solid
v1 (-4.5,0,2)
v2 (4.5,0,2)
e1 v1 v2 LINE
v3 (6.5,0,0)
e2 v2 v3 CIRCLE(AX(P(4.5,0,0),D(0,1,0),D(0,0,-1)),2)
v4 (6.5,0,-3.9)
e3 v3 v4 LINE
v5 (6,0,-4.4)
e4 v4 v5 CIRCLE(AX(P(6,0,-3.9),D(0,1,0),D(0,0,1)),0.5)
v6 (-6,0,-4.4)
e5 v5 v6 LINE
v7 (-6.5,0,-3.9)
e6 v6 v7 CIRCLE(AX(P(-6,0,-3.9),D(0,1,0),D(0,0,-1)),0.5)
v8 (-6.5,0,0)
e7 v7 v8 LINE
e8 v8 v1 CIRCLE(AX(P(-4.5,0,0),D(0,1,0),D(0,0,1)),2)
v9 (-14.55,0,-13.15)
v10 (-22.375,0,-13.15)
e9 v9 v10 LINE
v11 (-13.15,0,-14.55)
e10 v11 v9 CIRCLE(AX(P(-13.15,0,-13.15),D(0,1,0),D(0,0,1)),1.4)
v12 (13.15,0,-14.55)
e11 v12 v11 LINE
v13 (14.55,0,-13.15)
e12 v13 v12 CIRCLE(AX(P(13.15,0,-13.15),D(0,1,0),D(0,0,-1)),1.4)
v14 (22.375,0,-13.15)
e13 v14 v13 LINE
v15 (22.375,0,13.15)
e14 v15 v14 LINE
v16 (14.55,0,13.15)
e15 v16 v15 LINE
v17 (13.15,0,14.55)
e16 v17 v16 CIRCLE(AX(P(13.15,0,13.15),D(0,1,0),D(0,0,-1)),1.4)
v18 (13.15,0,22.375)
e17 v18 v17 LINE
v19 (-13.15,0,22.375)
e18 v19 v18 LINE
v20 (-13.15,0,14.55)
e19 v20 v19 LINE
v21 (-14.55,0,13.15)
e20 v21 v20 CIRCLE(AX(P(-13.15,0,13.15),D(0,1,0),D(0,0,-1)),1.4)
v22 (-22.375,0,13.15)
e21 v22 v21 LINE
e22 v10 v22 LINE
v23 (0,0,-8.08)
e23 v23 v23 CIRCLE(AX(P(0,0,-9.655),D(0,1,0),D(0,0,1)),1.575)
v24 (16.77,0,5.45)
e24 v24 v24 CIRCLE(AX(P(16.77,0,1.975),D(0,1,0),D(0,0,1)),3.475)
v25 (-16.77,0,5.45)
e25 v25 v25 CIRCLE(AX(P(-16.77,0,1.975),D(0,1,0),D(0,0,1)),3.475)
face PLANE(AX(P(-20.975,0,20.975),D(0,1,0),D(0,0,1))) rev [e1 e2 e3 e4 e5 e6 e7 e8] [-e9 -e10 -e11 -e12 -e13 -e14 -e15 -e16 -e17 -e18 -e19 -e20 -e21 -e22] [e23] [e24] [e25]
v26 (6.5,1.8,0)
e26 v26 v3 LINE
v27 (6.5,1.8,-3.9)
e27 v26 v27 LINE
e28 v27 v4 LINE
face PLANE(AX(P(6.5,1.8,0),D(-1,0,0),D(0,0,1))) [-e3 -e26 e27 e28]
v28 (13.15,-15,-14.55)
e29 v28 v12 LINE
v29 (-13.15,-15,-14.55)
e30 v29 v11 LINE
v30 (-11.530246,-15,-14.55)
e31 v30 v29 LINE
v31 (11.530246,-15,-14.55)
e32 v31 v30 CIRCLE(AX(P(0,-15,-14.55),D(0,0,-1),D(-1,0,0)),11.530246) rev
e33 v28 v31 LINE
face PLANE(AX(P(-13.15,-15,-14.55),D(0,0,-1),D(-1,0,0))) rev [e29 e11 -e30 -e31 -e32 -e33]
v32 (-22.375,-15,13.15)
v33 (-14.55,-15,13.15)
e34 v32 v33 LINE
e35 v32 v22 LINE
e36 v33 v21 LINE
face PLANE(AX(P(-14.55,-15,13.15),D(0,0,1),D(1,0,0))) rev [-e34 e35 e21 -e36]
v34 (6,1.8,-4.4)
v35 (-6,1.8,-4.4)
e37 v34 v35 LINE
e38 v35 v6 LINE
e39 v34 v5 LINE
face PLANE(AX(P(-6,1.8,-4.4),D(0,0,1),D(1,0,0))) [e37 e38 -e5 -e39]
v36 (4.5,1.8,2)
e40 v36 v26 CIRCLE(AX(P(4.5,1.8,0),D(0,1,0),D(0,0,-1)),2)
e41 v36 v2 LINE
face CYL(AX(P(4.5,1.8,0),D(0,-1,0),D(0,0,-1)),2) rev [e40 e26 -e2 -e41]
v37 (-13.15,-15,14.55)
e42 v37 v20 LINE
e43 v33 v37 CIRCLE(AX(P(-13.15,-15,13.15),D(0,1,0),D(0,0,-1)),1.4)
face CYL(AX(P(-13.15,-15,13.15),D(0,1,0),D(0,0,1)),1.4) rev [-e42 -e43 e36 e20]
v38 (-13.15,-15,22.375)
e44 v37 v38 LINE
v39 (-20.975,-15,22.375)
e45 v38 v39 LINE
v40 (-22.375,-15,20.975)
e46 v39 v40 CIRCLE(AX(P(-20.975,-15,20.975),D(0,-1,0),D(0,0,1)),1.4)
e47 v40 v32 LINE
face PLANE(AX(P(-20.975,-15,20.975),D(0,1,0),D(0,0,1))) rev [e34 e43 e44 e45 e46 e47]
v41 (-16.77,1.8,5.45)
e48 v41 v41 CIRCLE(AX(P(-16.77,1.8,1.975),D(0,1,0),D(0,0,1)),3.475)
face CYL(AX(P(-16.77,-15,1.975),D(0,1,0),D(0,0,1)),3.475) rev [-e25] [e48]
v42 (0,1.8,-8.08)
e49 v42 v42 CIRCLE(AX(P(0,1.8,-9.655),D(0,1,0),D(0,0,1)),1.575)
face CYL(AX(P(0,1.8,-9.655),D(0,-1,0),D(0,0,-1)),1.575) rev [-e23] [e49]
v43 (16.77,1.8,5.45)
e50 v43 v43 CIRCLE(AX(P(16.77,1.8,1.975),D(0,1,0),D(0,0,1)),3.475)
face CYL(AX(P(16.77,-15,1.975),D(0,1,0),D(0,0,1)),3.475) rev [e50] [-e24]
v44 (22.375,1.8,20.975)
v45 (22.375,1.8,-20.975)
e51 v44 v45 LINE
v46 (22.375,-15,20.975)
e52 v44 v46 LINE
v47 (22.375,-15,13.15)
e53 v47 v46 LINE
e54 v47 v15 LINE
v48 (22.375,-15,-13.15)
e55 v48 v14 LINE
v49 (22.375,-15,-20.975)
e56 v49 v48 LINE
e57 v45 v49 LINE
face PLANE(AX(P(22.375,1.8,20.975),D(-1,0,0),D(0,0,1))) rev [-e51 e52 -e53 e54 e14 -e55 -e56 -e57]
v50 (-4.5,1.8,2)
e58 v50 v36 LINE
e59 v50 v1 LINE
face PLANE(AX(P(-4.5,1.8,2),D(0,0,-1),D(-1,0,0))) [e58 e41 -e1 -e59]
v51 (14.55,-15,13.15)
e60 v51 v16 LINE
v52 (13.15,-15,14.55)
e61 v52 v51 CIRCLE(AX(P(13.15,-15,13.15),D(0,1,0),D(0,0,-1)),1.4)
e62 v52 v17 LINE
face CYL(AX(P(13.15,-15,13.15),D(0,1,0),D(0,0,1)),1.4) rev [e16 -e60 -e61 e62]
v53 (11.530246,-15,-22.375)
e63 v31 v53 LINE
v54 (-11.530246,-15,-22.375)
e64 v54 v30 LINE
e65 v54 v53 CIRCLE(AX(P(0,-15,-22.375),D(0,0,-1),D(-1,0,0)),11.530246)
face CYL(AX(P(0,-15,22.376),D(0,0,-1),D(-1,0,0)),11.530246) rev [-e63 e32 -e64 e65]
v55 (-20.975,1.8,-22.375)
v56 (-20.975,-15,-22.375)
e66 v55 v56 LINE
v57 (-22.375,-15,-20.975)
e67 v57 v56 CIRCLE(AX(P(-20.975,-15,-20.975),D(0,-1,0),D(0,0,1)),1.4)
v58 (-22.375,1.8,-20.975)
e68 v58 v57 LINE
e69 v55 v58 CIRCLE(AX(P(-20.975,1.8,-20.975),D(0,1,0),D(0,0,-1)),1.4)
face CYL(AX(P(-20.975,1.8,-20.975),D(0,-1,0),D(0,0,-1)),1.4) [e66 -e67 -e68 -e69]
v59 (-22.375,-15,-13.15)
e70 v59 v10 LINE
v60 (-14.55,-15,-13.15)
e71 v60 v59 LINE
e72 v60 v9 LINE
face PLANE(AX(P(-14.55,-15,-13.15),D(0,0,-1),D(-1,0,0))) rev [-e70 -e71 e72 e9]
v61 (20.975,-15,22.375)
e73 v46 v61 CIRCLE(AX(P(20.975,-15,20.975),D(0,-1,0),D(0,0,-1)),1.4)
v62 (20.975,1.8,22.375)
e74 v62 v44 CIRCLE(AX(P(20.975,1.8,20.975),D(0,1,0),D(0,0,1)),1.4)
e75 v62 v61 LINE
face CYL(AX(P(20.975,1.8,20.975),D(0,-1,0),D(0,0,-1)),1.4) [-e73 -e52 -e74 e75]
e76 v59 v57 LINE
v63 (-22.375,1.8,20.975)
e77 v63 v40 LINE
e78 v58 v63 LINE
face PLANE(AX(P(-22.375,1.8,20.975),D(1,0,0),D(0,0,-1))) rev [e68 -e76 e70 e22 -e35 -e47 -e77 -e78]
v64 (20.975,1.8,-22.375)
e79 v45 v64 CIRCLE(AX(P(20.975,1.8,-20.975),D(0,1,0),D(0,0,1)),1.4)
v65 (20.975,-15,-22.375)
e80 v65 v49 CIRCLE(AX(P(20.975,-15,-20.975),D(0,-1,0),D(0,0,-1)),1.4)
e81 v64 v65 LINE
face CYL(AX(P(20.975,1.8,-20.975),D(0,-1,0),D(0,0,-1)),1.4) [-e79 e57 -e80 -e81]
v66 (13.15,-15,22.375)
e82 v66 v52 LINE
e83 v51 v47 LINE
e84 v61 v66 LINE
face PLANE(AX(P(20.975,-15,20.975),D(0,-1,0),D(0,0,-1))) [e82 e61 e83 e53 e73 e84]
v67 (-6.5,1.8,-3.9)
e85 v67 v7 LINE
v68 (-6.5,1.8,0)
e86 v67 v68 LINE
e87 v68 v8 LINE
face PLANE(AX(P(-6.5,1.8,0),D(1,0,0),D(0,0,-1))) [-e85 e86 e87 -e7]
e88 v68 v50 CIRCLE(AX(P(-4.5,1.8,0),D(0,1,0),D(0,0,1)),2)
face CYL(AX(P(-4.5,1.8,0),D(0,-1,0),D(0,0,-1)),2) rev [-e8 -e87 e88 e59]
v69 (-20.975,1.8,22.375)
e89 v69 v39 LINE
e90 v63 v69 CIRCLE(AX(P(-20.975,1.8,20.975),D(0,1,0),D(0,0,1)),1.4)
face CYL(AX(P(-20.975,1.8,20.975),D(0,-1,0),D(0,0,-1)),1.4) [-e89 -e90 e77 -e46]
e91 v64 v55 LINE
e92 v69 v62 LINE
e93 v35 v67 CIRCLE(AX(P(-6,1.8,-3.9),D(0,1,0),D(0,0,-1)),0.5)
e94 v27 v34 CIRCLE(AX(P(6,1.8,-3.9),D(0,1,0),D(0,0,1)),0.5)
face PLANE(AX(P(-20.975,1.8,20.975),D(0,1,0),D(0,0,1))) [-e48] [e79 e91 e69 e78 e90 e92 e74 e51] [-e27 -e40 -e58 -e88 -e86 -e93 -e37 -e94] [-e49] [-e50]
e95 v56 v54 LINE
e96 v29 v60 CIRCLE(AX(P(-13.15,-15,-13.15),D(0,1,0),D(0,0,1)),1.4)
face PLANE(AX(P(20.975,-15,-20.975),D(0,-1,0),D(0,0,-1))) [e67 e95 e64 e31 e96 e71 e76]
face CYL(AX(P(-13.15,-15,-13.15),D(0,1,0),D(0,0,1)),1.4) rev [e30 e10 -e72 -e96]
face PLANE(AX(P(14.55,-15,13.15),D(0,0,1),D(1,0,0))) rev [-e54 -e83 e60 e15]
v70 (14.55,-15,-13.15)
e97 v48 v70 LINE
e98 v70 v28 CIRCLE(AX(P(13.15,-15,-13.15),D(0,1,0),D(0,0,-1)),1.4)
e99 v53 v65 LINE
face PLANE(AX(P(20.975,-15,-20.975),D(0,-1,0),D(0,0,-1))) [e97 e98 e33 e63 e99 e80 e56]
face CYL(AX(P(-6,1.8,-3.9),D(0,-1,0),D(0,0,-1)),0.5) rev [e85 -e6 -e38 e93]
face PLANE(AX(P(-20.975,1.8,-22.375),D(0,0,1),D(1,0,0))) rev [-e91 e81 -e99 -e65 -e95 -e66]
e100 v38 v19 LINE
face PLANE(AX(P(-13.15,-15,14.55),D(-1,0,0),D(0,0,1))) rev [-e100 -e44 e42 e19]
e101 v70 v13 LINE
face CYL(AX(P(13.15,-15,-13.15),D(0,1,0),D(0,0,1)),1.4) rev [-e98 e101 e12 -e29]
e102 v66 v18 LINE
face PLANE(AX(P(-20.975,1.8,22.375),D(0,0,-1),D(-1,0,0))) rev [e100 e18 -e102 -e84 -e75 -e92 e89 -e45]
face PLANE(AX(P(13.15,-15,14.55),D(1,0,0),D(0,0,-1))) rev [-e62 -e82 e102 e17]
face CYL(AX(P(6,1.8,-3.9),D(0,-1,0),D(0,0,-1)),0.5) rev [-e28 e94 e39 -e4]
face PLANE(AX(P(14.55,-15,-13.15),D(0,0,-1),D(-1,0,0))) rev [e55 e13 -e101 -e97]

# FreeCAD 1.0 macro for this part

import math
import FreeCAD as App
import Part
import Sketcher
from FreeCAD import Vector
Q = App.Units.Quantity

doc = App.newDocument("Part")
body = doc.addObject("PartDesign::Body", "Body")

sketch1 = body.newObject("Sketcher::SketchObject", "Sketch")
sketch1.AttachmentSupport = (doc.getObject("XZ_Plane"), [""])
sketch1.MapMode = "FlatFace"
sketch1.addGeometry([
    Part.LineSegment(Vector(-20.98, 22.38, 0), Vector(20.98, 22.38, 0)),
    Part.ArcOfCircle(Part.Circle(Vector(20.98, 20.98, 0), Vector(0, 0, 1), 1.4), math.radians(0), math.radians(90)),
    Part.LineSegment(Vector(22.38, 20.98, 0), Vector(22.38, -20.98, 0)),
    Part.ArcOfCircle(Part.Circle(Vector(20.98, -20.98, 0), Vector(0, 0, 1), 1.4), math.radians(-90), math.radians(0)),
    Part.LineSegment(Vector(20.98, -22.38, 0), Vector(-20.98, -22.38, 0)),
    Part.ArcOfCircle(Part.Circle(Vector(-20.98, -20.98, 0), Vector(0, 0, 1), 1.4), math.radians(180), math.radians(270)),
    Part.LineSegment(Vector(-22.38, -20.98, 0), Vector(-22.38, 20.98, 0)),
    Part.ArcOfCircle(Part.Circle(Vector(-20.98, 20.98, 0), Vector(0, 0, 1), 1.4), math.radians(90), math.radians(180)),
    Part.LineSegment(Vector(4.5, 2, 0), Vector(-4.5, 2, 0)),
    Part.ArcOfCircle(Part.Circle(Vector(-4.5, 0, 0), Vector(0, 0, 1), 2), math.radians(90), math.radians(180)),
    Part.LineSegment(Vector(-6.5, 0, 0), Vector(-6.5, -3.9, 0)),
    Part.ArcOfCircle(Part.Circle(Vector(-6, -3.9, 0), Vector(0, 0, 1), 0.5), math.radians(180), math.radians(270)),
    Part.LineSegment(Vector(-6, -4.4, 0), Vector(6, -4.4, 0)),
    Part.ArcOfCircle(Part.Circle(Vector(6, -3.9, 0), Vector(0, 0, 1), 0.5), math.radians(-90), math.radians(0)),
    Part.LineSegment(Vector(6.5, -3.9, 0), Vector(6.5, 0, 0)),
    Part.ArcOfCircle(Part.Circle(Vector(4.5, 0, 0), Vector(0, 0, 1), 2), math.radians(0), math.radians(90)),
    Part.Circle(Vector(0, -9.65, 0), Vector(0, 0, 1), 1.57),
], False)
sketch1.addConstraint([
    Sketcher.Constraint("Tangent", 0, 2, 1, 2),
    Sketcher.Constraint("Tangent", 1, 1, 2, 1),
    Sketcher.Constraint("Tangent", 2, 2, 3, 2),
    Sketcher.Constraint("Tangent", 3, 1, 4, 1),
    Sketcher.Constraint("Tangent", 4, 2, 5, 2),
    Sketcher.Constraint("Tangent", 5, 1, 6, 1),
    Sketcher.Constraint("Tangent", 6, 2, 7, 2),
    Sketcher.Constraint("Tangent", 7, 1, 0, 1),
    Sketcher.Constraint("Tangent", 8, 2, 9, 1),
    Sketcher.Constraint("Tangent", 9, 2, 10, 1),
    Sketcher.Constraint("Tangent", 10, 2, 11, 1),
    Sketcher.Constraint("Tangent", 11, 2, 12, 1),
    Sketcher.Constraint("Tangent", 12, 2, 13, 1),
    Sketcher.Constraint("Tangent", 13, 2, 14, 1),
    Sketcher.Constraint("Tangent", 14, 2, 15, 1),
    Sketcher.Constraint("Tangent", 15, 2, 8, 1),
    Sketcher.Constraint("Horizontal", 0),
    Sketcher.Constraint("Vertical", 2),
    Sketcher.Constraint("Horizontal", 4),
    Sketcher.Constraint("Vertical", 6),
    Sketcher.Constraint("Horizontal", 8),
    Sketcher.Constraint("Vertical", 10),
    Sketcher.Constraint("Horizontal", 12),
    Sketcher.Constraint("Vertical", 14),
    Sketcher.Constraint("Equal", 1, 3),
    Sketcher.Constraint("Equal", 3, 5),
    Sketcher.Constraint("Equal", 5, 7),
    Sketcher.Constraint("Equal", 11, 13),
    Sketcher.Constraint("Equal", 9, 15),
    Sketcher.Constraint("Symmetric", 1, 3, 5, 3, -1, 1),
    Sketcher.Constraint("Symmetric", 9, 3, 15, 3, -1, 1),
    Sketcher.Constraint("PointOnObject", 16, 3, -2),
    Sketcher.Constraint("Equal", 4, 2),
    Sketcher.Constraint("Radius", 9, Q("2 mm")),
    Sketcher.Constraint("Radius", 1, Q("1.4 mm")),
    Sketcher.Constraint("Radius", 11, Q("0.5 mm")),
    Sketcher.Constraint("Diameter", 16, Q("3.15 mm")),
    Sketcher.Constraint("DistanceX", 8, 2, 8, 1, Q("9 mm")),
    Sketcher.Constraint("DistanceY", 10, 2, 10, 1, Q("3.9 mm")),
    Sketcher.Constraint("DistanceX", 0, 1, 0, 2, Q("41.95 mm")),
    Sketcher.Constraint("DistanceY", 3, 3, 16, 3, Q("11.32 mm")),
])
pad1 = body.newObject("PartDesign::Pad", "Pad")
pad1.Profile = sketch1
pad1.Length = 1.8
pad1.Reversed = True

sketch2 = body.newObject("Sketcher::SketchObject", "Sketch001")
sketch2.AttachmentSupport = (doc.getObject("XZ_Plane"), [""])
sketch2.MapMode = "FlatFace"
sketch2.AttachmentOffset = App.Placement(Vector(0, 0, 15), App.Rotation())
sketch2.addGeometry([
    Part.LineSegment(Vector(-21, -22.4, 0), Vector(21, -22.4, 0)),
    Part.ArcOfCircle(Part.Circle(Vector(21, -21, 0), Vector(0, 0, 1), 1.4), math.radians(-90), math.radians(0)),
    Part.LineSegment(Vector(22.4, -21, 0), Vector(22.4, -13.2, 0)),
    Part.LineSegment(Vector(22.4, -13.2, 0), Vector(14.6, -13.2, 0)),
    Part.ArcOfCircle(Part.Circle(Vector(13.2, -13.2, 0), Vector(0, 0, 1), 1.4), math.radians(-90), math.radians(0)),
    Part.LineSegment(Vector(13.2, -14.6, 0), Vector(-13.2, -14.6, 0)),
    Part.ArcOfCircle(Part.Circle(Vector(-13.2, -13.2, 0), Vector(0, 0, 1), 1.4), math.radians(180), math.radians(270)),
    Part.LineSegment(Vector(-14.6, -13.2, 0), Vector(-22.4, -13.2, 0)),
    Part.LineSegment(Vector(-22.4, -13.2, 0), Vector(-22.4, -21, 0)),
    Part.ArcOfCircle(Part.Circle(Vector(-21, -21, 0), Vector(0, 0, 1), 1.4), math.radians(180), math.radians(270)),
    Part.LineSegment(Vector(-13.2, 22.4, 0), Vector(-21, 22.4, 0)),
    Part.ArcOfCircle(Part.Circle(Vector(-21, 21, 0), Vector(0, 0, 1), 1.4), math.radians(90), math.radians(180)),
    Part.LineSegment(Vector(-22.4, 21, 0), Vector(-22.4, 13.2, 0)),
    Part.LineSegment(Vector(-22.4, 13.2, 0), Vector(-14.6, 13.2, 0)),
    Part.ArcOfCircle(Part.Circle(Vector(-13.2, 13.2, 0), Vector(0, 0, 1), 1.4), math.radians(90), math.radians(180)),
    Part.LineSegment(Vector(-13.2, 14.6, 0), Vector(-13.2, 22.4, 0)),
    Part.LineSegment(Vector(14.6, 13.2, 0), Vector(22.4, 13.2, 0)),
    Part.LineSegment(Vector(22.4, 13.2, 0), Vector(22.4, 21, 0)),
    Part.ArcOfCircle(Part.Circle(Vector(21, 21, 0), Vector(0, 0, 1), 1.4), math.radians(0), math.radians(90)),
    Part.LineSegment(Vector(21, 22.4, 0), Vector(13.2, 22.4, 0)),
    Part.LineSegment(Vector(13.2, 22.4, 0), Vector(13.2, 14.6, 0)),
    Part.ArcOfCircle(Part.Circle(Vector(13.2, 13.2, 0), Vector(0, 0, 1), 1.4), math.radians(0), math.radians(90)),
], False)
sketch2.addConstraint([
    Sketcher.Constraint("Tangent", 0, 2, 1, 1),
    Sketcher.Constraint("Tangent", 1, 2, 2, 1),
    Sketcher.Constraint("Coincident", 2, 2, 3, 1),
    Sketcher.Constraint("Coincident", 3, 2, 4, 2),
    Sketcher.Constraint("Tangent", 4, 1, 5, 1),
    Sketcher.Constraint("Tangent", 5, 2, 6, 2),
    Sketcher.Constraint("Coincident", 6, 1, 7, 1),
    Sketcher.Constraint("Coincident", 7, 2, 8, 1),
    Sketcher.Constraint("Tangent", 8, 2, 9, 1),
    Sketcher.Constraint("Tangent", 9, 2, 0, 1),
    Sketcher.Constraint("Tangent", 10, 2, 11, 1),
    Sketcher.Constraint("Tangent", 11, 2, 12, 1),
    Sketcher.Constraint("Coincident", 12, 2, 13, 1),
    Sketcher.Constraint("Coincident", 13, 2, 14, 2),
    Sketcher.Constraint("Coincident", 14, 1, 15, 1),
    Sketcher.Constraint("Coincident", 15, 2, 10, 1),
    Sketcher.Constraint("Coincident", 16, 2, 17, 1),
    Sketcher.Constraint("Tangent", 17, 2, 18, 1),
    Sketcher.Constraint("Tangent", 18, 2, 19, 1),
    Sketcher.Constraint("Coincident", 19, 2, 20, 1),
    Sketcher.Constraint("Coincident", 20, 2, 21, 2),
    Sketcher.Constraint("Coincident", 21, 1, 16, 1),
    Sketcher.Constraint("Horizontal", 0),
    Sketcher.Constraint("Vertical", 2),
    Sketcher.Constraint("Horizontal", 3),
    Sketcher.Constraint("Horizontal", 5),
    Sketcher.Constraint("Horizontal", 7),
    Sketcher.Constraint("Vertical", 8),
    Sketcher.Constraint("Horizontal", 10),
    Sketcher.Constraint("Vertical", 12),
    Sketcher.Constraint("Horizontal", 13),
    Sketcher.Constraint("Vertical", 15),
    Sketcher.Constraint("Horizontal", 16),
    Sketcher.Constraint("Vertical", 17),
    Sketcher.Constraint("Horizontal", 19),
    Sketcher.Constraint("Vertical", 20),
    Sketcher.Constraint("Equal", 1, 4),
    Sketcher.Constraint("Equal", 4, 6),
    Sketcher.Constraint("Equal", 6, 9),
    Sketcher.Constraint("Equal", 9, 11),
    Sketcher.Constraint("Equal", 11, 14),
    Sketcher.Constraint("Equal", 14, 18),
    Sketcher.Constraint("Equal", 18, 21),
    Sketcher.Constraint("Symmetric", 1, 3, 11, 3, -1, 1),
    Sketcher.Constraint("Symmetric", 4, 3, 14, 3, -1, 1),
    Sketcher.Constraint("Symmetric", 9, 3, 18, 3, -1, 1),
    Sketcher.Constraint("Symmetric", 6, 3, 21, 3, -1, 1),
    Sketcher.Constraint("Symmetric", 3, 2, 6, 1, -2),
    Sketcher.Constraint("Symmetric", 12, 2, 16, 2, -2),
    Sketcher.Constraint("Horizontal", 6, 3, 2, 2),
    Sketcher.Constraint("Horizontal", 21, 3, 12, 2),
    Sketcher.Constraint("Vertical", 5, 2, 14, 1),
    Sketcher.Constraint("Vertical", 4, 1, 19, 2),
    Sketcher.Constraint("Equal", 19, 2),
    Sketcher.Constraint("Radius", 1, Q("1.4 mm")),
    Sketcher.Constraint("DistanceX", 5, 2, 5, 1, Q("26.3 mm")),
    Sketcher.Constraint("DistanceX", 0, 1, 0, 2, Q("41.95 mm")),
    Sketcher.Constraint("DistanceY", 6, 3, 14, 3, Q("26.3 mm")),
])
pad2 = body.newObject("PartDesign::Pad", "Pad001")
pad2.Profile = sketch2
pad2.Length = 15
pad2.Reversed = True

sketch3 = body.newObject("Sketcher::SketchObject", "Sketch002")
sketch3.AttachmentSupport = (doc.getObject("XY_Plane"), [""])
sketch3.MapMode = "FlatFace"
sketch3.AttachmentOffset = App.Placement(Vector(0, 0, -22.375), App.Rotation())
sketch3.addGeometry(Part.Circle(Vector(0, -15, 0), Vector(0, 0, 1), 12), False)
sketch3.addConstraint([
    Sketcher.Constraint("PointOnObject", 0, 3, -2),
    Sketcher.Constraint("DistanceY", 0, 3, -1, 1, Q("15 mm")),
    Sketcher.Constraint("Diameter", 0, Q("23.060491 mm")),
])
pocket1 = body.newObject("PartDesign::Pocket", "Pocket")
pocket1.Profile = sketch3
pocket1.Type = "UpToFirst"
pocket1.Reversed = True

sketch4 = body.newObject("Sketcher::SketchObject", "Sketch003")
sketch4.AttachmentSupport = (doc.getObject("XZ_Plane"), [""])
sketch4.MapMode = "FlatFace"
sketch4.AttachmentOffset = App.Placement(Vector(0, 0, -1.8), App.Rotation())
sketch4.addGeometry([
    Part.Circle(Vector(-16.8, 2, 0), Vector(0, 0, 1), 3.5),
    Part.Circle(Vector(16.8, 2, 0), Vector(0, 0, 1), 3.5),
], False)
sketch4.addConstraint([
    Sketcher.Constraint("Equal", 0, 1),
    Sketcher.Constraint("Symmetric", 0, 3, 1, 3, -2),
    Sketcher.Constraint("Diameter", 0, Q("6.95 mm")),
    Sketcher.Constraint("DistanceX", 0, 3, -1, 1, Q("16.77 mm")),
    Sketcher.Constraint("DistanceY", -1, 1, 0, 3, Q("1.975 mm")),
])
pocket2 = body.newObject("PartDesign::Pocket", "Pocket001")
pocket2.Profile = sketch4
pocket2.Type = "ThroughAll"
pocket2.Reversed = True

doc.recompute()
